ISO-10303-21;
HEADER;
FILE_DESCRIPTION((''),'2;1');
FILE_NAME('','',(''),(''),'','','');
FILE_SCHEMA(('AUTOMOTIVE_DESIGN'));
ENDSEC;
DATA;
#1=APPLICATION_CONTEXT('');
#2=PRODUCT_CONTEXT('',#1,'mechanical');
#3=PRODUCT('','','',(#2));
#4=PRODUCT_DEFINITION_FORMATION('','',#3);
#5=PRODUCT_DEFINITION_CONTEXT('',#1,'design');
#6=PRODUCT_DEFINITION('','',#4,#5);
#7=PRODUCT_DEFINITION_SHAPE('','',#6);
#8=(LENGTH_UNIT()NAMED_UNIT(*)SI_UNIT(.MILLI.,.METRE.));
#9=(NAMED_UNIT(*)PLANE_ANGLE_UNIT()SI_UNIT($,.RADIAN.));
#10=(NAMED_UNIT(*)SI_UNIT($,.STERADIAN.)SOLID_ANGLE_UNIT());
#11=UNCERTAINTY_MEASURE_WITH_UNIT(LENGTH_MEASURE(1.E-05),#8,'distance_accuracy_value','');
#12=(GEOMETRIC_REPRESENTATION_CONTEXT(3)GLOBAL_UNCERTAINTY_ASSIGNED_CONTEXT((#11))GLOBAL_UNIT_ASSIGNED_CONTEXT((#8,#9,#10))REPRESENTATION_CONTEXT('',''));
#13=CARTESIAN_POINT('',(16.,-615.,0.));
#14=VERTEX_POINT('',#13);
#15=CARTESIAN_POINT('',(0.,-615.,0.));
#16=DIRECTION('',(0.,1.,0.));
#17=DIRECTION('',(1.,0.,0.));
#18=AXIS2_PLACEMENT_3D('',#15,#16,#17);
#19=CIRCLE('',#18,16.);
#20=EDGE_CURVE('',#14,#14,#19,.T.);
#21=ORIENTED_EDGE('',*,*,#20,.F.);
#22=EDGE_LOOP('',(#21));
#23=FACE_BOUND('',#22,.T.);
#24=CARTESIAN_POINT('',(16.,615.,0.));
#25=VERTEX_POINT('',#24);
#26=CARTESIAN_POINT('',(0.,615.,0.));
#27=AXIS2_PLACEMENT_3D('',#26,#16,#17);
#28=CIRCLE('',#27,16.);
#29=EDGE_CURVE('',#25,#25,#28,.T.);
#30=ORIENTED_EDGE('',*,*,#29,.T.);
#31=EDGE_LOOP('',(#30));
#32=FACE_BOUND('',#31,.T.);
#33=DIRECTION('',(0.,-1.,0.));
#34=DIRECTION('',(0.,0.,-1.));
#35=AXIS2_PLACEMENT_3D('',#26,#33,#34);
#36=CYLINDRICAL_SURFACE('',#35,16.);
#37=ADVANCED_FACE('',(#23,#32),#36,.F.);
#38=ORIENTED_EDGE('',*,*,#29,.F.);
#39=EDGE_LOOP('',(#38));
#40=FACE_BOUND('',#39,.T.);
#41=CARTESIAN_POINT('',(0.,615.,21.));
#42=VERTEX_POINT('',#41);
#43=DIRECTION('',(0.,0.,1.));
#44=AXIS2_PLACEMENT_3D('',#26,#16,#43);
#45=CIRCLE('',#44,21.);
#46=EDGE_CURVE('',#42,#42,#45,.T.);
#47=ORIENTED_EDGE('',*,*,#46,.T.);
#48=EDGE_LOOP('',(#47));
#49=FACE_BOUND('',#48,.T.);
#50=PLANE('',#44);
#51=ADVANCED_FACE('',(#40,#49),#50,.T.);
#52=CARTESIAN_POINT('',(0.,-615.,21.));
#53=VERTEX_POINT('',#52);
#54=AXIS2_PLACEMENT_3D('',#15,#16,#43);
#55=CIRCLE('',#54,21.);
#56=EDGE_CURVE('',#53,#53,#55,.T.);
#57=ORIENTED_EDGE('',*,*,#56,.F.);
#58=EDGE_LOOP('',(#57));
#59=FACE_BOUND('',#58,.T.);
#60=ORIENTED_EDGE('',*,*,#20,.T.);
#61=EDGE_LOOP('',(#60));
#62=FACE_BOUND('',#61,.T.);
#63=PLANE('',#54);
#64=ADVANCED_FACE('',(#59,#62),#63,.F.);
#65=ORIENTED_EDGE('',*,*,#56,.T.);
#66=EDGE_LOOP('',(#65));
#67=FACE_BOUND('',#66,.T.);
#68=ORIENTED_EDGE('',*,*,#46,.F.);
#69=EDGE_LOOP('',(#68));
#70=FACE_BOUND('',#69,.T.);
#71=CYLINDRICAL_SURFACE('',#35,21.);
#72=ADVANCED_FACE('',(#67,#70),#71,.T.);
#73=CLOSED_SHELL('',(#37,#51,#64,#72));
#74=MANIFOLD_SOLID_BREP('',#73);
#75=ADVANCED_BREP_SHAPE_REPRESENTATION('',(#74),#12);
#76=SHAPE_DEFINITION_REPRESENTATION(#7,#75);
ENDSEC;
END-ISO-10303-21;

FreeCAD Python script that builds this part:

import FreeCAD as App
import Part
import Sketcher

V = App.Vector
Q = App.Units.Quantity

doc = App.newDocument("Part")
body = doc.addObject("PartDesign::Body", "Body")

# Sketch on XZ plane
sketch1 = body.newObject("Sketcher::SketchObject", "Sketch")
sketch1.AttachmentSupport = (doc.getObject("XZ_Plane"), [""])
sketch1.MapMode = "FlatFace"
sketch1.addGeometry(Part.Circle(V(0, 0, 0), V(0, 0, 1), 21), False)
sketch1.addGeometry(Part.Circle(V(0, 0, 0), V(0, 0, 1), 16), False)
sketch1.addConstraint(Sketcher.Constraint("Coincident", 0, 3, -1, 1))
sketch1.addConstraint(Sketcher.Constraint("Coincident", 1, 3, -1, 1))
sketch1.addConstraint(Sketcher.Constraint("Diameter", 0, Q("42 mm")))
sketch1.addConstraint(Sketcher.Constraint("Diameter", 1, Q("32 mm")))
pad1 = body.newObject("PartDesign::Pad", "Pad")
pad1.Profile = sketch1
pad1.Length = 1230
pad1.Midplane = True

doc.recompute()
